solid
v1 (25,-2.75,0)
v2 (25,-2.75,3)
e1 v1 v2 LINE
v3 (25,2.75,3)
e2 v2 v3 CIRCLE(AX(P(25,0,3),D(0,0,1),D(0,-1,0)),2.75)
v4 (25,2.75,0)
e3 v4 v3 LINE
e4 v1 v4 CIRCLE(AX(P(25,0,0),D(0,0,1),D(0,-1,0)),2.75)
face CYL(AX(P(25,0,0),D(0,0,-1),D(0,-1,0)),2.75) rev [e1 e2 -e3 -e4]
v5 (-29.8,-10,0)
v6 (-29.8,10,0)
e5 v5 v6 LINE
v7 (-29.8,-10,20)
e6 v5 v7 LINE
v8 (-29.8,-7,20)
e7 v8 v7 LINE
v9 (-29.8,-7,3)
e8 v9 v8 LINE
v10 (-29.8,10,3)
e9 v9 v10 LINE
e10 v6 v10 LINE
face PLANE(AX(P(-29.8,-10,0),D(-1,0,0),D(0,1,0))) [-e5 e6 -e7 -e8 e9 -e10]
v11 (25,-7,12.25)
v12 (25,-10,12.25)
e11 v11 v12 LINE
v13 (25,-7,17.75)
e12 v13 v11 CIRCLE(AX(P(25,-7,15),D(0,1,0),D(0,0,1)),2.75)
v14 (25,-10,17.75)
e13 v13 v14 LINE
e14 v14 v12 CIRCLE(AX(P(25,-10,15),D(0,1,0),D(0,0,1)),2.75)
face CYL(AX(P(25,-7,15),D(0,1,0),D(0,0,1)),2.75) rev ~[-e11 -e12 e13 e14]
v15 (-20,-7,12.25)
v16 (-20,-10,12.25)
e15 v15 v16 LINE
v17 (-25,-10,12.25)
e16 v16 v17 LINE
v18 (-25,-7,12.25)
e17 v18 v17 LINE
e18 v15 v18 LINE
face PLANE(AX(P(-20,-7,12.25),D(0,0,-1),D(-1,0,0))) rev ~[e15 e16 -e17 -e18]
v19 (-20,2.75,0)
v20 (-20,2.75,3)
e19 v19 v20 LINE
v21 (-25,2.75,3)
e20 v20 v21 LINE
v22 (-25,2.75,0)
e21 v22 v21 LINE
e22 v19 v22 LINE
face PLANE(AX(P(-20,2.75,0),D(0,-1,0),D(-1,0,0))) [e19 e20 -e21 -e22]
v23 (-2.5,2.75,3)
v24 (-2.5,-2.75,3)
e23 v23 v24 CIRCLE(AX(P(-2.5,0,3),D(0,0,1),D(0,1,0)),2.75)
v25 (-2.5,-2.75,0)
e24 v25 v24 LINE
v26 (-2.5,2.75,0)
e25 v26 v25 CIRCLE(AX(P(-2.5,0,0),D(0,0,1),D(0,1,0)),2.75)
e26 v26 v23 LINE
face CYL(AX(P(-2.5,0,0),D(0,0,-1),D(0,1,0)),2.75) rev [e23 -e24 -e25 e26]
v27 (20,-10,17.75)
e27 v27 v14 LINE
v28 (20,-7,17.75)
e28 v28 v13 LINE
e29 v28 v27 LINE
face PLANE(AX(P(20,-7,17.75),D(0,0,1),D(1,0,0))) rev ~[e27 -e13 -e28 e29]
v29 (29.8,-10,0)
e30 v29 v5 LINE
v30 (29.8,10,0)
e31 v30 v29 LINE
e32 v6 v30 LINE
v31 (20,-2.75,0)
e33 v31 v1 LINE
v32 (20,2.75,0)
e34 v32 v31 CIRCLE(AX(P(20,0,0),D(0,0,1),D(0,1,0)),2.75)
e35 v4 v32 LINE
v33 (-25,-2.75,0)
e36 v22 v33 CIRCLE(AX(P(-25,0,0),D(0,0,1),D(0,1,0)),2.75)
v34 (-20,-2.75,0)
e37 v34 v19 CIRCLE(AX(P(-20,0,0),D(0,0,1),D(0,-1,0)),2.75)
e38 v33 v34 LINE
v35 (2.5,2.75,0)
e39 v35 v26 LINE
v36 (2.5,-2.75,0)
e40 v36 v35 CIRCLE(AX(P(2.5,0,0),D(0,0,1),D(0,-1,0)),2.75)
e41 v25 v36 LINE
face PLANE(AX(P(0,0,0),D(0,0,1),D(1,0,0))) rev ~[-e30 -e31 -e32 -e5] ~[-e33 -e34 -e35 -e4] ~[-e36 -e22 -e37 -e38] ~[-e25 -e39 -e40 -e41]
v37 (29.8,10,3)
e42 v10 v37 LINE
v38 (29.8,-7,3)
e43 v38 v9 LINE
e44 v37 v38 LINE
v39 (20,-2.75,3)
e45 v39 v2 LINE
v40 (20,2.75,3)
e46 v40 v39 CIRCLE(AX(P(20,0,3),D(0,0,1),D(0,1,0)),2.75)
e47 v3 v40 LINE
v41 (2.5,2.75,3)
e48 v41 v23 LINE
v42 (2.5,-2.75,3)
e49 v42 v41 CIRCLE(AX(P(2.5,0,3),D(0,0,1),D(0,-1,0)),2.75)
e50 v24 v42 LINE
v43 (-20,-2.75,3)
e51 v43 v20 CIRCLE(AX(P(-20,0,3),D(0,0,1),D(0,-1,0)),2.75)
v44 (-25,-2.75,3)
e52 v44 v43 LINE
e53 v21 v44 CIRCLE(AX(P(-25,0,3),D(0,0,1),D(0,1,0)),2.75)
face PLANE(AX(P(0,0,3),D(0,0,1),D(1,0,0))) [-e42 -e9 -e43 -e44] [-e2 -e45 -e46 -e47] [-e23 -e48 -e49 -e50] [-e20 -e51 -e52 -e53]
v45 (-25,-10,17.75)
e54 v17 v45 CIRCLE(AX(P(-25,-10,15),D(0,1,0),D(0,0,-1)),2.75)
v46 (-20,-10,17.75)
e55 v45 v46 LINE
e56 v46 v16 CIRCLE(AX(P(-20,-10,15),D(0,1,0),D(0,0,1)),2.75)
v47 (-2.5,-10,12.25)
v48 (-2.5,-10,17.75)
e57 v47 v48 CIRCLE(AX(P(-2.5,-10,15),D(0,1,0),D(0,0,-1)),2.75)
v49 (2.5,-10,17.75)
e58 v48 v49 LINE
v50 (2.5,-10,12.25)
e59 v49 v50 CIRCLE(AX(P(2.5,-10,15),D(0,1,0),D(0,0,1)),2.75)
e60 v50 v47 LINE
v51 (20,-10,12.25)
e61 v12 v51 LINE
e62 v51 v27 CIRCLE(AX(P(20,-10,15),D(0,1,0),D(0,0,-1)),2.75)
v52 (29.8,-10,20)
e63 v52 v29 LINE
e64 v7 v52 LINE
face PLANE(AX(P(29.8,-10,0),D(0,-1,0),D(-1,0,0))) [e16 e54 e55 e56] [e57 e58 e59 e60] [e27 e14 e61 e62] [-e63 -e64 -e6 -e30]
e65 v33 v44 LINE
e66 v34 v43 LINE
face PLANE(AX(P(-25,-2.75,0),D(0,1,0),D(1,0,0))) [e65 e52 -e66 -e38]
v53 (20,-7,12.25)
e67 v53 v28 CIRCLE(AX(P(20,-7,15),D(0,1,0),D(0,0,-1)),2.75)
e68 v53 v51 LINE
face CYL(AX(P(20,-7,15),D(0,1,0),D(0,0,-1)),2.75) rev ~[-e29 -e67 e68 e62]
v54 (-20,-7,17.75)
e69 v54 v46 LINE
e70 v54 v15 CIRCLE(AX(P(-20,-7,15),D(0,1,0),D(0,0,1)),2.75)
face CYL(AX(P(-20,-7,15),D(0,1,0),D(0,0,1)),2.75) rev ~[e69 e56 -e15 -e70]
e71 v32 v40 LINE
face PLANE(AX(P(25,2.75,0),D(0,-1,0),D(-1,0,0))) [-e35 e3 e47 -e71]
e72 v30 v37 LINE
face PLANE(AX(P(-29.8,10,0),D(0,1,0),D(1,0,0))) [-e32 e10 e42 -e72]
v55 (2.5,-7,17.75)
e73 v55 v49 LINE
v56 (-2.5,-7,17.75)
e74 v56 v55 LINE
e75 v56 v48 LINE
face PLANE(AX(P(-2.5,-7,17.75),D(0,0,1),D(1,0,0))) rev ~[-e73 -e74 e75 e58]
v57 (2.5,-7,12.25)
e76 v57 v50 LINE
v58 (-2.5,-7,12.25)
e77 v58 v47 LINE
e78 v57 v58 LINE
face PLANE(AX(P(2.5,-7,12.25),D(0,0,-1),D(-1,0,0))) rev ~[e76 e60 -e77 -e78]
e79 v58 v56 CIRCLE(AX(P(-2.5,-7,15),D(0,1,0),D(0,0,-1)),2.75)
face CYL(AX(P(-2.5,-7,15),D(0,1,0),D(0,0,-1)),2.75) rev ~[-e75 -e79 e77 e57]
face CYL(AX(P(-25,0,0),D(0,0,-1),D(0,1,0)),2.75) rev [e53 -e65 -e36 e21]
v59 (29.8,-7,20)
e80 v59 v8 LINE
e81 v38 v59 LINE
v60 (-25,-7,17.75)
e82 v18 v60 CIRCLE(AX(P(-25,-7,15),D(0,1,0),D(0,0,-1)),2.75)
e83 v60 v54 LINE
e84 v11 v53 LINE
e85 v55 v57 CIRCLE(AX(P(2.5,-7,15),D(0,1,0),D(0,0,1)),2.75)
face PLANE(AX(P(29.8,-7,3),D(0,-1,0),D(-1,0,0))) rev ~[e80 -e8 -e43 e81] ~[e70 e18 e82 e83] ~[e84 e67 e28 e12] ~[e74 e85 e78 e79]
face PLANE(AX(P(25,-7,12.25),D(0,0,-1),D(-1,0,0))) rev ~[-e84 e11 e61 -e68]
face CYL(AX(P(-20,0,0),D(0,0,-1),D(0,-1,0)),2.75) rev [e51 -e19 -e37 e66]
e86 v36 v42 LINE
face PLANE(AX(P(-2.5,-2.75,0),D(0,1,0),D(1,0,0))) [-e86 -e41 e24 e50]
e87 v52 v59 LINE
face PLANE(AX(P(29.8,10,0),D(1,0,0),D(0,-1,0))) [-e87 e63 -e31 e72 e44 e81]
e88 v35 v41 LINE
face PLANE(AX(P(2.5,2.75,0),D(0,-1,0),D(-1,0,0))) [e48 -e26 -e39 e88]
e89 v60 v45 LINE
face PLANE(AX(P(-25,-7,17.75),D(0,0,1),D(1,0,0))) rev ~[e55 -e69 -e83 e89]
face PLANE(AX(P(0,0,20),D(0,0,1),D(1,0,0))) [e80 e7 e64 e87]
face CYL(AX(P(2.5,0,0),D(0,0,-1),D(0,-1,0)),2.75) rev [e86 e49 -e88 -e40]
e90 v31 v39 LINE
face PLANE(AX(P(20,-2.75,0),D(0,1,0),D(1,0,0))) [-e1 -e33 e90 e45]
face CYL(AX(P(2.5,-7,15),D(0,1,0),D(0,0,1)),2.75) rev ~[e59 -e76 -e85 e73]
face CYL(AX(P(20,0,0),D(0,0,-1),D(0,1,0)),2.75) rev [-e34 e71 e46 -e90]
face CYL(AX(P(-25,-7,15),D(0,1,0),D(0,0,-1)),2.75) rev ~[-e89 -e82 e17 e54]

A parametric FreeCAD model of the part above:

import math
import FreeCAD as App
import Part
import Sketcher
from FreeCAD import Vector

doc = App.newDocument("Part")
params = doc.addObject("Spreadsheet::Sheet", "Params")
for row, (alias, value) in enumerate([
    ("sketch1_width", "5 mm"),
    ("sketch1_height", "20 mm"),
    ("sketch1_radius", "2.75 mm"),
    ("sketch1_width2", "59.6 mm"),
    ("pad1_length", "3 mm"),
    ("sketch2_height", "3 mm"),
    ("sketch2_width", "59.6 mm"),
    ("pad2_length", "17 mm"),
    ("sketch3_width", "5 mm"),
    ("sketch3_radius", "2.75 mm"),
    ("pocket1_length", "3 mm"),
], start=1):
    params.set(f"A{row}", alias)
    params.set(f"B{row}", "=" + value)
    params.setAlias(f"B{row}", alias)

body = doc.addObject("PartDesign::Body", "Body")

# Sketch on XY plane
sketch1 = doc.addObject("Sketcher::SketchObject", "Sketch")
body.addObject(sketch1)
sketch1.AttachmentSupport = (doc.XY_Plane, [""])
sketch1.MapMode = "FlatFace"
sketch1.addGeometry([
    Part.LineSegment(Vector(29.8, 10, 0), Vector(-29.8, 10, 0)),  # 0
    Part.LineSegment(Vector(-29.8, 10, 0), Vector(-29.8, -10, 0)),  # 1
    Part.LineSegment(Vector(-29.8, -10, 0), Vector(29.8, -10, 0)),  # 2
    Part.LineSegment(Vector(29.8, -10, 0), Vector(29.8, 10, 0)),  # 3
    Part.LineSegment(Vector(-20, -2.8, 0), Vector(-25, -2.8, 0)),  # 4
    Part.ArcOfCircle(Part.Circle(Vector(-25, 0, 0), Vector(0, 0, 1), 2.8), math.radians(90), math.radians(270)),  # 5
    Part.LineSegment(Vector(-25, 2.8, 0), Vector(-20, 2.8, 0)),  # 6
    Part.ArcOfCircle(Part.Circle(Vector(-20, 0, 0), Vector(0, 0, 1), 2.8), math.radians(-90), math.radians(90)),  # 7
    Part.LineSegment(Vector(2.5, -2.8, 0), Vector(-2.5, -2.8, 0)),  # 8
    Part.ArcOfCircle(Part.Circle(Vector(-2.5, 0, 0), Vector(0, 0, 1), 2.8), math.radians(90), math.radians(270)),  # 9
    Part.LineSegment(Vector(-2.5, 2.8, 0), Vector(2.5, 2.8, 0)),  # 10
    Part.ArcOfCircle(Part.Circle(Vector(2.5, 0, 0), Vector(0, 0, 1), 2.8), math.radians(-90), math.radians(90)),  # 11
    Part.LineSegment(Vector(25, -2.8, 0), Vector(20, -2.8, 0)),  # 12
    Part.ArcOfCircle(Part.Circle(Vector(20, 0, 0), Vector(0, 0, 1), 2.8), math.radians(90), math.radians(270)),  # 13
    Part.LineSegment(Vector(20, 2.8, 0), Vector(25, 2.8, 0)),  # 14
    Part.ArcOfCircle(Part.Circle(Vector(25, 0, 0), Vector(0, 0, 1), 2.8), math.radians(-90), math.radians(90)),  # 15
], False)
sketch1.addConstraint([
    Sketcher.Constraint("Coincident", 0, 2, 1, 1),
    Sketcher.Constraint("Coincident", 1, 2, 2, 1),
    Sketcher.Constraint("Coincident", 2, 2, 3, 1),
    Sketcher.Constraint("Coincident", 3, 2, 0, 1),
    Sketcher.Constraint("Tangent", 4, 2, 5, 2),
    Sketcher.Constraint("Tangent", 5, 1, 6, 1),
    Sketcher.Constraint("Tangent", 6, 2, 7, 2),
    Sketcher.Constraint("Tangent", 7, 1, 4, 1),
    Sketcher.Constraint("Tangent", 8, 2, 9, 2),
    Sketcher.Constraint("Tangent", 9, 1, 10, 1),
    Sketcher.Constraint("Tangent", 10, 2, 11, 2),
    Sketcher.Constraint("Tangent", 11, 1, 8, 1),
    Sketcher.Constraint("Tangent", 12, 2, 13, 2),
    Sketcher.Constraint("Tangent", 13, 1, 14, 1),
    Sketcher.Constraint("Tangent", 14, 2, 15, 2),
    Sketcher.Constraint("Tangent", 15, 1, 12, 1),
    Sketcher.Constraint("Horizontal", 0),
    Sketcher.Constraint("Vertical", 1),
    Sketcher.Constraint("Horizontal", 2),
    Sketcher.Constraint("Vertical", 3),
    Sketcher.Constraint("Horizontal", 4),
    Sketcher.Constraint("Horizontal", 6),
    Sketcher.Constraint("Horizontal", 8),
    Sketcher.Constraint("Horizontal", 10),
    Sketcher.Constraint("Horizontal", 12),
    Sketcher.Constraint("Horizontal", 14),
    Sketcher.Constraint("Equal", 7, 9),
    Sketcher.Constraint("Equal", 11, 13),
    Sketcher.Constraint("Symmetric", 9, 3, 11, 3, -1, 1),
    Sketcher.Constraint("Symmetric", 7, 3, 13, 3, -1, 1),
    Sketcher.Constraint("Symmetric", 0, 2, 2, 2, -1, 1),
    Sketcher.Constraint("Symmetric", 5, 3, 15, 3, -2),
    Sketcher.Constraint("Equal", 6, 8),
    Sketcher.Constraint("DistanceX", 4, 2, 4, 1, 5.0),
    Sketcher.Constraint("DistanceY", 1, 2, 1, 1, 20.0),
    Sketcher.Constraint("Radius", 5, 2.75),
    Sketcher.Constraint("DistanceX", 0, 2, 0, 1, 59.6),
    Sketcher.Constraint("DistanceX", 7, 3, -1, 1, 20.0),
])
sketch1.setExpression("Constraints[33]", "Params.sketch1_width")
sketch1.setExpression("Constraints[34]", "Params.sketch1_height")
sketch1.setExpression("Constraints[35]", "Params.sketch1_radius")
sketch1.setExpression("Constraints[36]", "Params.sketch1_width2")
pad1 = doc.addObject("PartDesign::Pad", "Pad")
body.addObject(pad1)
pad1.Profile = sketch1
pad1.setExpression("Length", "Params.pad1_length")

# Sketch on XY plane
sketch2 = doc.addObject("Sketcher::SketchObject", "Sketch001")
body.addObject(sketch2)
sketch2.AttachmentSupport = (doc.XY_Plane, [""])
sketch2.MapMode = "FlatFace"
sketch2.AttachmentOffset = App.Placement(Vector(0, 0, 3), App.Rotation())
sketch2.addGeometry([
    Part.LineSegment(Vector(-29.8, -10, 0), Vector(29.8, -10, 0)),
    Part.LineSegment(Vector(29.8, -10, 0), Vector(29.8, -7, 0)),
    Part.LineSegment(Vector(29.8, -7, 0), Vector(-29.8, -7, 0)),
    Part.LineSegment(Vector(-29.8, -7, 0), Vector(-29.8, -10, 0)),
], False)
sketch2.addConstraint([
    Sketcher.Constraint("Coincident", 0, 2, 1, 1),
    Sketcher.Constraint("Coincident", 1, 2, 2, 1),
    Sketcher.Constraint("Coincident", 2, 2, 3, 1),
    Sketcher.Constraint("Coincident", 3, 2, 0, 1),
    Sketcher.Constraint("Horizontal", 0),
    Sketcher.Constraint("Vertical", 1),
    Sketcher.Constraint("Horizontal", 2),
    Sketcher.Constraint("Vertical", 3),
    Sketcher.Constraint("DistanceY", 1, 1, 1, 2, 3.0),
    Sketcher.Constraint("DistanceX", 0, 1, 0, 2, 59.6),
    Sketcher.Constraint("DistanceY", 0, 2, -1, 1, 10.0),
    Sketcher.Constraint("DistanceX", -1, 1, 0, 2, 29.8),
])
sketch2.setExpression("Constraints[8]", "Params.sketch2_height")
sketch2.setExpression("Constraints[9]", "Params.sketch2_width")
pad2 = doc.addObject("PartDesign::Pad", "Pad001")
body.addObject(pad2)
pad2.Profile = sketch2
pad2.setExpression("Length", "Params.pad2_length")

# Sketch on XZ plane
sketch3 = doc.addObject("Sketcher::SketchObject", "Sketch002")
body.addObject(sketch3)
sketch3.AttachmentSupport = (doc.XZ_Plane, [""])
sketch3.MapMode = "FlatFace"
sketch3.AttachmentOffset = App.Placement(Vector(0, 0, 7), App.Rotation())
sketch3.addGeometry([
    Part.ArcOfCircle(Part.Circle(Vector(-2.5, 15, 0), Vector(0, 0, 1), 2.8), math.radians(90), math.radians(270)),  # 0
    Part.LineSegment(Vector(-2.5, 17.8, 0), Vector(2.5, 17.8, 0)),  # 1
    Part.ArcOfCircle(Part.Circle(Vector(2.5, 15, 0), Vector(0, 0, 1), 2.8), math.radians(-90), math.radians(90)),  # 2
    Part.LineSegment(Vector(2.5, 12.2, 0), Vector(-2.5, 12.2, 0)),  # 3
    Part.ArcOfCircle(Part.Circle(Vector(-25, 15, 0), Vector(0, 0, 1), 2.8), math.radians(90), math.radians(270)),  # 4
    Part.LineSegment(Vector(-25, 17.8, 0), Vector(-20, 17.8, 0)),  # 5
    Part.ArcOfCircle(Part.Circle(Vector(-20, 15, 0), Vector(0, 0, 1), 2.8), math.radians(-90), math.radians(90)),  # 6
    Part.LineSegment(Vector(-20, 12.2, 0), Vector(-25, 12.2, 0)),  # 7
    Part.ArcOfCircle(Part.Circle(Vector(20, 15, 0), Vector(0, 0, 1), 2.8), math.radians(90), math.radians(270)),  # 8
    Part.LineSegment(Vector(20, 17.8, 0), Vector(25, 17.8, 0)),  # 9
    Part.ArcOfCircle(Part.Circle(Vector(25, 15, 0), Vector(0, 0, 1), 2.8), math.radians(-90), math.radians(90)),  # 10
    Part.LineSegment(Vector(25, 12.2, 0), Vector(20, 12.2, 0)),  # 11
], False)
sketch3.addConstraint([
    Sketcher.Constraint("Tangent", 0, 1, 1, 1),
    Sketcher.Constraint("Tangent", 1, 2, 2, 2),
    Sketcher.Constraint("Tangent", 2, 1, 3, 1),
    Sketcher.Constraint("Tangent", 3, 2, 0, 2),
    Sketcher.Constraint("Tangent", 4, 1, 5, 1),
    Sketcher.Constraint("Tangent", 5, 2, 6, 2),
    Sketcher.Constraint("Tangent", 6, 1, 7, 1),
    Sketcher.Constraint("Tangent", 7, 2, 4, 2),
    Sketcher.Constraint("Tangent", 8, 1, 9, 1),
    Sketcher.Constraint("Tangent", 9, 2, 10, 2),
    Sketcher.Constraint("Tangent", 10, 1, 11, 1),
    Sketcher.Constraint("Tangent", 11, 2, 8, 2),
    Sketcher.Constraint("Horizontal", 1),
    Sketcher.Constraint("Horizontal", 3),
    Sketcher.Constraint("Horizontal", 5),
    Sketcher.Constraint("Horizontal", 7),
    Sketcher.Constraint("Horizontal", 9),
    Sketcher.Constraint("Horizontal", 11),
    Sketcher.Constraint("Equal", 2, 4),
    Sketcher.Constraint("Equal", 6, 8),
    Sketcher.Constraint("Symmetric", 6, 3, 8, 3, -2),
    Sketcher.Constraint("Horizontal", 2, 3, 4, 3),
    Sketcher.Constraint("Equal", 3, 5),
    Sketcher.Constraint("Equal", 7, 9),
    Sketcher.Constraint("DistanceX", 1, 1, 1, 2, 5.0),
    Sketcher.Constraint("Radius", 0, 2.75),
    Sketcher.Constraint("DistanceX", 4, 3, 0, 3, 22.5),
    Sketcher.Constraint("DistanceX", 0, 3, 8, 3, 22.5),
    Sketcher.Constraint("DistanceY", -1, 1, 0, 3, 15.0),
])
sketch3.setExpression("Constraints[24]", "Params.sketch3_width")
sketch3.setExpression("Constraints[25]", "Params.sketch3_radius")
pocket1 = doc.addObject("PartDesign::Pocket", "Pocket")
body.addObject(pocket1)
pocket1.Profile = sketch3
pocket1.setExpression("Length", "Params.pocket1_length")
pocket1.Reversed = True

doc.recompute()
